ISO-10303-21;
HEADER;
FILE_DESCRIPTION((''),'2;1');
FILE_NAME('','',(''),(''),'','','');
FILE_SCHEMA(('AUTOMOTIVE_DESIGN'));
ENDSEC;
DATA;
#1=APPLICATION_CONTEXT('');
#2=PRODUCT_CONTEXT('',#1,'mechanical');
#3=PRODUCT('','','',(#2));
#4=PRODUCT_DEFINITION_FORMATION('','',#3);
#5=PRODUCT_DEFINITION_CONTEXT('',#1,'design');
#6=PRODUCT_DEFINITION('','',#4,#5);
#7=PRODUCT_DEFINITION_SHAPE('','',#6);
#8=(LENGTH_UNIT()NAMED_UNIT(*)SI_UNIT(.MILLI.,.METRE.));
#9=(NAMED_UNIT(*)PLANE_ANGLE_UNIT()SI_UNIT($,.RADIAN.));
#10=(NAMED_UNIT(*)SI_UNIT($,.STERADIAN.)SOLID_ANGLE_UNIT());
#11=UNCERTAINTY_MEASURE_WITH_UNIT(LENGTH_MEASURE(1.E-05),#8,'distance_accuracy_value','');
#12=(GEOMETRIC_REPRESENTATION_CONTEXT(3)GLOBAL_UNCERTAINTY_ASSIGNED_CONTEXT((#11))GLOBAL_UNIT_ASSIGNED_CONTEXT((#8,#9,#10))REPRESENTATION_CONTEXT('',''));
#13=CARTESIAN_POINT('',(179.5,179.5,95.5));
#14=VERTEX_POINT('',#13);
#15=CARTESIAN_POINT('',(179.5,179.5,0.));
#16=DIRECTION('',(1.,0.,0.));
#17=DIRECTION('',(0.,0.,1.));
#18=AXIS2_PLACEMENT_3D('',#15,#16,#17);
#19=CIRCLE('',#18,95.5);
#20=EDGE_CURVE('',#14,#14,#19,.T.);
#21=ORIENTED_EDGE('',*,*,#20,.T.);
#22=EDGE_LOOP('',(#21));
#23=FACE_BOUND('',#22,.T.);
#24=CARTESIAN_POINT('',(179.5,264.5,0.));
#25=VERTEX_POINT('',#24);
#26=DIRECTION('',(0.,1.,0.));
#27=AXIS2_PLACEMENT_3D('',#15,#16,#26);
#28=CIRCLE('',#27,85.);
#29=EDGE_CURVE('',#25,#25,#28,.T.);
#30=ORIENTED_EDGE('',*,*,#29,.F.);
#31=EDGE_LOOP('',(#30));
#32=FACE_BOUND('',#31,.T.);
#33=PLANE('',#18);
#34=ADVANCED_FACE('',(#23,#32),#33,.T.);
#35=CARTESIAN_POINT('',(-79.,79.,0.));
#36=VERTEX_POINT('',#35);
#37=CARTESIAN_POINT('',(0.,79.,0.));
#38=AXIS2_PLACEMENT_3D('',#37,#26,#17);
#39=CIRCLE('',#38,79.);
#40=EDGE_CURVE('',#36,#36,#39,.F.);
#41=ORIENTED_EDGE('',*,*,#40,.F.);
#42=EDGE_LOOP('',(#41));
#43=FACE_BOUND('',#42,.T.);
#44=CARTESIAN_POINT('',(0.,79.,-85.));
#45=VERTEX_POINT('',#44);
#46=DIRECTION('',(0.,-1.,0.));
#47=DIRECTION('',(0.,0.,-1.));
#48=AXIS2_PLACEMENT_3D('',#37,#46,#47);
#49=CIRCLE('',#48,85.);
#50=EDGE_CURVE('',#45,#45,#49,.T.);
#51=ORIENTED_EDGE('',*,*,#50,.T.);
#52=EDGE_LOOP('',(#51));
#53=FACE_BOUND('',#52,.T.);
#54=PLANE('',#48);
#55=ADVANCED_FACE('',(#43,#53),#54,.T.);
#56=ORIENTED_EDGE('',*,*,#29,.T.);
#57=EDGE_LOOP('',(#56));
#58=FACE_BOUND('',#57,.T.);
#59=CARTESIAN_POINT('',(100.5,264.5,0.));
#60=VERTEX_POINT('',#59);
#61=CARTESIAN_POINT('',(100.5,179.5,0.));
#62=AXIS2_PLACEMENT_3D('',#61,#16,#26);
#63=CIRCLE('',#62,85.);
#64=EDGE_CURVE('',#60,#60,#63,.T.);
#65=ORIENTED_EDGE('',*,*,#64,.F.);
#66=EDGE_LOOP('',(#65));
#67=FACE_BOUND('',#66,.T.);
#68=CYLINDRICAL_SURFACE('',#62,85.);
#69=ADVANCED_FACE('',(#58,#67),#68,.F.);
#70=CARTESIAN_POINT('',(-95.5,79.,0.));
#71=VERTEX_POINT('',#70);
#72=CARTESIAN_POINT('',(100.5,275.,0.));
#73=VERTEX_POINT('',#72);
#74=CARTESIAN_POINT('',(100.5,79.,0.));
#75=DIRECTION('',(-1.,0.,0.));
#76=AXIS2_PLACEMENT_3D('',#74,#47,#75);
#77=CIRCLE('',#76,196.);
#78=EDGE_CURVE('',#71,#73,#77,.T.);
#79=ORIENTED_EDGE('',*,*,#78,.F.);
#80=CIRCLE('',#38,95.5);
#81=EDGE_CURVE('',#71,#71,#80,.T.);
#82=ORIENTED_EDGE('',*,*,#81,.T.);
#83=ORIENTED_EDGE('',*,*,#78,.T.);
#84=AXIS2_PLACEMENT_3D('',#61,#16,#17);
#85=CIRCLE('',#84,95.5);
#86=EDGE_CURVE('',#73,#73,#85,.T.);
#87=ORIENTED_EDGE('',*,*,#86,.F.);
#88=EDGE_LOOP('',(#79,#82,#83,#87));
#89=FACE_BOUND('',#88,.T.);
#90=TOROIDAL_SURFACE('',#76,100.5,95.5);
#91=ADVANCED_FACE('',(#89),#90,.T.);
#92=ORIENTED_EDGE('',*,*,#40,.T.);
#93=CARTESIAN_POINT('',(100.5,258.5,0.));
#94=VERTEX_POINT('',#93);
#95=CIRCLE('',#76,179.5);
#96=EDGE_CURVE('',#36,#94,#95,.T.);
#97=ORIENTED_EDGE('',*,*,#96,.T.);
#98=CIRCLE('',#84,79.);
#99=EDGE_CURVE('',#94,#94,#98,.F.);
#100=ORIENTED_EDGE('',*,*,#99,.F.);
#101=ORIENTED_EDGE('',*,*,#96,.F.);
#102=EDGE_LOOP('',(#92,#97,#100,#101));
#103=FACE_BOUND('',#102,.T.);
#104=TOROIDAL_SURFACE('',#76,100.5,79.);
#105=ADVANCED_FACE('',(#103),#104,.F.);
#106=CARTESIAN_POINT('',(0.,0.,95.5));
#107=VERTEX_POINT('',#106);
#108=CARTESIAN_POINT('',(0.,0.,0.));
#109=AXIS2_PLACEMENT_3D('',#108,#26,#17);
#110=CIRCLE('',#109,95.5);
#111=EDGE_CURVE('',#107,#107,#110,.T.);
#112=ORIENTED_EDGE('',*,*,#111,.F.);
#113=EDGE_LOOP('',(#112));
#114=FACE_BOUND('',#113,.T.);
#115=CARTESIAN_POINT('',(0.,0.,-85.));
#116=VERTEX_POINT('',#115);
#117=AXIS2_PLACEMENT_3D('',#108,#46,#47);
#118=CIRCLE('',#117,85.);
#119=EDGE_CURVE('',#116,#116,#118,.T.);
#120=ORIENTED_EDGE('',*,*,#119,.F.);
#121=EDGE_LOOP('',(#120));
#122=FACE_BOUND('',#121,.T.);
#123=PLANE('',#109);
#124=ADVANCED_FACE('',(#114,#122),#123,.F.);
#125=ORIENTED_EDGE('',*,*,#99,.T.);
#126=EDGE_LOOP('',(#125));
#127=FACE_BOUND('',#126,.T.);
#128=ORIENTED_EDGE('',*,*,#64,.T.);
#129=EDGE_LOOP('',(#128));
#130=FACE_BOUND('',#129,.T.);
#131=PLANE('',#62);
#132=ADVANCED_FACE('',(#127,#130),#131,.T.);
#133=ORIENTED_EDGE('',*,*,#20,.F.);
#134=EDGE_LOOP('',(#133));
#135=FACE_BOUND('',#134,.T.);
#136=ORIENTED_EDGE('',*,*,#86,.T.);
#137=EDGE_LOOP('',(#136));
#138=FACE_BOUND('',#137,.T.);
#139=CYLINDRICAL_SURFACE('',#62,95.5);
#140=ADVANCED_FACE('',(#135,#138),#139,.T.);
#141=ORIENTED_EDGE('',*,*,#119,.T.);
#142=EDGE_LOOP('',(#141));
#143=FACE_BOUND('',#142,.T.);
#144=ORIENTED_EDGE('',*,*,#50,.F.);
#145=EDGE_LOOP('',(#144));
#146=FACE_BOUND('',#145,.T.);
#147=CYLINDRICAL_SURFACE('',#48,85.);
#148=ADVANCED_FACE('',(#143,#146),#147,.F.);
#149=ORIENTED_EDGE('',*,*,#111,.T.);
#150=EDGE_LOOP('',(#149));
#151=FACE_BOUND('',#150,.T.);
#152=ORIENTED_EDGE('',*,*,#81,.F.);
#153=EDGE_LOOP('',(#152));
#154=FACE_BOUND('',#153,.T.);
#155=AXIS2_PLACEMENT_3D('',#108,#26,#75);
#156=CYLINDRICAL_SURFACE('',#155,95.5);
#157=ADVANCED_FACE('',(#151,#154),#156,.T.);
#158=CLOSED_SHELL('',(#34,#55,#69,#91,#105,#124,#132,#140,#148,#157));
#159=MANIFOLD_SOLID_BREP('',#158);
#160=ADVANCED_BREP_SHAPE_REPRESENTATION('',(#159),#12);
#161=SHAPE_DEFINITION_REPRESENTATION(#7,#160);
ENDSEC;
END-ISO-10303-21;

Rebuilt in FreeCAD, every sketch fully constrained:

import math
import FreeCAD as App
import Part
import Sketcher
Q = App.Units.Quantity

doc = App.newDocument("Part")
body = doc.addObject("PartDesign::Body", "Body")

# Sketch on XZ plane
sketch1 = body.newObject("Sketcher::SketchObject", "Sketch")
sketch1.AttachmentSupport = (doc.getObject("XZ_Plane"), [""])
sketch1.MapMode = "FlatFace"
sketch1.addGeometry([
    Part.Circle(App.Vector(0, 0, 0), App.Vector(0, 0, 1), 96),
    Part.Circle(App.Vector(0, 0, 0), App.Vector(0, 0, 1), 79),
], False)
sketch1.addConstraint([
    Sketcher.Constraint("Coincident", 0, 3, -1, 1),
    Sketcher.Constraint("Coincident", 1, 3, -1, 1),
    Sketcher.Constraint("Diameter", 0, Q("191 mm")),
    Sketcher.Constraint("Diameter", 1, Q("158 mm")),
])

# Sketch on XY plane
sketch2 = body.newObject("Sketcher::SketchObject", "Sketch001")
sketch2.AttachmentSupport = (doc.getObject("XY_Plane"), [""])
sketch2.MapMode = "FlatFace"
sketch2.addGeometry([
    Part.LineSegment(App.Vector(0, 0, 0), App.Vector(0, 79, 0)),
    Part.ArcOfCircle(Part.Circle(App.Vector(101, 79, 0), App.Vector(0, 0, 1), 101), math.radians(90), math.radians(180)),
    Part.LineSegment(App.Vector(100, 180, 0), App.Vector(180, 180, 0)),
], False)
sketch2.addConstraint([
    Sketcher.Constraint("Tangent", 0, 2, 1, 2),
    Sketcher.Constraint("Tangent", 1, 1, 2, 1),
    Sketcher.Constraint("Vertical", 0),
    Sketcher.Constraint("Horizontal", 2),
    Sketcher.Constraint("Coincident", 0, 1, -1, 1),
    Sketcher.Constraint("Equal", 2, 0),
    Sketcher.Constraint("Radius", 1, Q("100.5 mm")),
    Sketcher.Constraint("DistanceX", 2, 1, 2, 2, Q("79 mm")),
])
doc.recompute()

additivepipe = body.newObject("PartDesign::AdditivePipe", "AdditivePipe")
additivepipe.Profile = sketch1
additivepipe.Spine = (sketch2, ["Edge1", "Edge2", "Edge3"])

# Sketch on XZ plane
sketch3 = body.newObject("Sketcher::SketchObject", "Sketch002")
sketch3.AttachmentSupport = (doc.getObject("XZ_Plane"), [""])
sketch3.MapMode = "FlatFace"
sketch3.AttachmentOffset = App.Placement(App.Vector(0, 0, -79), App.Rotation())
sketch3.addGeometry([
    Part.Circle(App.Vector(0, 0, 0), App.Vector(0, 0, 1), 85),
    Part.Circle(App.Vector(0, 0, 0), App.Vector(0, 0, 1), 79),
], False)
sketch3.addConstraint([
    Sketcher.Constraint("Coincident", 0, 3, -1, 1),
    Sketcher.Constraint("Coincident", 1, 3, -1, 1),
    Sketcher.Constraint("Diameter", 0, Q("170 mm")),
    Sketcher.Constraint("Diameter", 1, Q("158 mm")),
])
pocket1 = body.newObject("PartDesign::Pocket", "Pocket")
pocket1.Profile = sketch3
pocket1.Length = 79
pocket1.Reversed = True

# Sketch on YZ plane
sketch4 = body.newObject("Sketcher::SketchObject", "Sketch003")
sketch4.AttachmentSupport = (doc.getObject("YZ_Plane"), [""])
sketch4.MapMode = "FlatFace"
sketch4.AttachmentOffset = App.Placement(App.Vector(0, 0, 179.5), App.Rotation())
sketch4.addGeometry([
    Part.Circle(App.Vector(180, 0, 0), App.Vector(0, 0, 1), 85),
    Part.Circle(App.Vector(180, 0, 0), App.Vector(0, 0, 1), 79),
], False)
sketch4.addConstraint([
    Sketcher.Constraint("Coincident", 1, 3, 0, 3),
    Sketcher.Constraint("PointOnObject", 0, 3, -1),
    Sketcher.Constraint("Diameter", 0, Q("170 mm")),
    Sketcher.Constraint("Diameter", 1, Q("158 mm")),
    Sketcher.Constraint("DistanceX", -1, 1, 0, 3, Q("179.5 mm")),
])
pocket2 = body.newObject("PartDesign::Pocket", "Pocket001")
pocket2.Profile = sketch4
pocket2.Length = 79

doc.recompute()
